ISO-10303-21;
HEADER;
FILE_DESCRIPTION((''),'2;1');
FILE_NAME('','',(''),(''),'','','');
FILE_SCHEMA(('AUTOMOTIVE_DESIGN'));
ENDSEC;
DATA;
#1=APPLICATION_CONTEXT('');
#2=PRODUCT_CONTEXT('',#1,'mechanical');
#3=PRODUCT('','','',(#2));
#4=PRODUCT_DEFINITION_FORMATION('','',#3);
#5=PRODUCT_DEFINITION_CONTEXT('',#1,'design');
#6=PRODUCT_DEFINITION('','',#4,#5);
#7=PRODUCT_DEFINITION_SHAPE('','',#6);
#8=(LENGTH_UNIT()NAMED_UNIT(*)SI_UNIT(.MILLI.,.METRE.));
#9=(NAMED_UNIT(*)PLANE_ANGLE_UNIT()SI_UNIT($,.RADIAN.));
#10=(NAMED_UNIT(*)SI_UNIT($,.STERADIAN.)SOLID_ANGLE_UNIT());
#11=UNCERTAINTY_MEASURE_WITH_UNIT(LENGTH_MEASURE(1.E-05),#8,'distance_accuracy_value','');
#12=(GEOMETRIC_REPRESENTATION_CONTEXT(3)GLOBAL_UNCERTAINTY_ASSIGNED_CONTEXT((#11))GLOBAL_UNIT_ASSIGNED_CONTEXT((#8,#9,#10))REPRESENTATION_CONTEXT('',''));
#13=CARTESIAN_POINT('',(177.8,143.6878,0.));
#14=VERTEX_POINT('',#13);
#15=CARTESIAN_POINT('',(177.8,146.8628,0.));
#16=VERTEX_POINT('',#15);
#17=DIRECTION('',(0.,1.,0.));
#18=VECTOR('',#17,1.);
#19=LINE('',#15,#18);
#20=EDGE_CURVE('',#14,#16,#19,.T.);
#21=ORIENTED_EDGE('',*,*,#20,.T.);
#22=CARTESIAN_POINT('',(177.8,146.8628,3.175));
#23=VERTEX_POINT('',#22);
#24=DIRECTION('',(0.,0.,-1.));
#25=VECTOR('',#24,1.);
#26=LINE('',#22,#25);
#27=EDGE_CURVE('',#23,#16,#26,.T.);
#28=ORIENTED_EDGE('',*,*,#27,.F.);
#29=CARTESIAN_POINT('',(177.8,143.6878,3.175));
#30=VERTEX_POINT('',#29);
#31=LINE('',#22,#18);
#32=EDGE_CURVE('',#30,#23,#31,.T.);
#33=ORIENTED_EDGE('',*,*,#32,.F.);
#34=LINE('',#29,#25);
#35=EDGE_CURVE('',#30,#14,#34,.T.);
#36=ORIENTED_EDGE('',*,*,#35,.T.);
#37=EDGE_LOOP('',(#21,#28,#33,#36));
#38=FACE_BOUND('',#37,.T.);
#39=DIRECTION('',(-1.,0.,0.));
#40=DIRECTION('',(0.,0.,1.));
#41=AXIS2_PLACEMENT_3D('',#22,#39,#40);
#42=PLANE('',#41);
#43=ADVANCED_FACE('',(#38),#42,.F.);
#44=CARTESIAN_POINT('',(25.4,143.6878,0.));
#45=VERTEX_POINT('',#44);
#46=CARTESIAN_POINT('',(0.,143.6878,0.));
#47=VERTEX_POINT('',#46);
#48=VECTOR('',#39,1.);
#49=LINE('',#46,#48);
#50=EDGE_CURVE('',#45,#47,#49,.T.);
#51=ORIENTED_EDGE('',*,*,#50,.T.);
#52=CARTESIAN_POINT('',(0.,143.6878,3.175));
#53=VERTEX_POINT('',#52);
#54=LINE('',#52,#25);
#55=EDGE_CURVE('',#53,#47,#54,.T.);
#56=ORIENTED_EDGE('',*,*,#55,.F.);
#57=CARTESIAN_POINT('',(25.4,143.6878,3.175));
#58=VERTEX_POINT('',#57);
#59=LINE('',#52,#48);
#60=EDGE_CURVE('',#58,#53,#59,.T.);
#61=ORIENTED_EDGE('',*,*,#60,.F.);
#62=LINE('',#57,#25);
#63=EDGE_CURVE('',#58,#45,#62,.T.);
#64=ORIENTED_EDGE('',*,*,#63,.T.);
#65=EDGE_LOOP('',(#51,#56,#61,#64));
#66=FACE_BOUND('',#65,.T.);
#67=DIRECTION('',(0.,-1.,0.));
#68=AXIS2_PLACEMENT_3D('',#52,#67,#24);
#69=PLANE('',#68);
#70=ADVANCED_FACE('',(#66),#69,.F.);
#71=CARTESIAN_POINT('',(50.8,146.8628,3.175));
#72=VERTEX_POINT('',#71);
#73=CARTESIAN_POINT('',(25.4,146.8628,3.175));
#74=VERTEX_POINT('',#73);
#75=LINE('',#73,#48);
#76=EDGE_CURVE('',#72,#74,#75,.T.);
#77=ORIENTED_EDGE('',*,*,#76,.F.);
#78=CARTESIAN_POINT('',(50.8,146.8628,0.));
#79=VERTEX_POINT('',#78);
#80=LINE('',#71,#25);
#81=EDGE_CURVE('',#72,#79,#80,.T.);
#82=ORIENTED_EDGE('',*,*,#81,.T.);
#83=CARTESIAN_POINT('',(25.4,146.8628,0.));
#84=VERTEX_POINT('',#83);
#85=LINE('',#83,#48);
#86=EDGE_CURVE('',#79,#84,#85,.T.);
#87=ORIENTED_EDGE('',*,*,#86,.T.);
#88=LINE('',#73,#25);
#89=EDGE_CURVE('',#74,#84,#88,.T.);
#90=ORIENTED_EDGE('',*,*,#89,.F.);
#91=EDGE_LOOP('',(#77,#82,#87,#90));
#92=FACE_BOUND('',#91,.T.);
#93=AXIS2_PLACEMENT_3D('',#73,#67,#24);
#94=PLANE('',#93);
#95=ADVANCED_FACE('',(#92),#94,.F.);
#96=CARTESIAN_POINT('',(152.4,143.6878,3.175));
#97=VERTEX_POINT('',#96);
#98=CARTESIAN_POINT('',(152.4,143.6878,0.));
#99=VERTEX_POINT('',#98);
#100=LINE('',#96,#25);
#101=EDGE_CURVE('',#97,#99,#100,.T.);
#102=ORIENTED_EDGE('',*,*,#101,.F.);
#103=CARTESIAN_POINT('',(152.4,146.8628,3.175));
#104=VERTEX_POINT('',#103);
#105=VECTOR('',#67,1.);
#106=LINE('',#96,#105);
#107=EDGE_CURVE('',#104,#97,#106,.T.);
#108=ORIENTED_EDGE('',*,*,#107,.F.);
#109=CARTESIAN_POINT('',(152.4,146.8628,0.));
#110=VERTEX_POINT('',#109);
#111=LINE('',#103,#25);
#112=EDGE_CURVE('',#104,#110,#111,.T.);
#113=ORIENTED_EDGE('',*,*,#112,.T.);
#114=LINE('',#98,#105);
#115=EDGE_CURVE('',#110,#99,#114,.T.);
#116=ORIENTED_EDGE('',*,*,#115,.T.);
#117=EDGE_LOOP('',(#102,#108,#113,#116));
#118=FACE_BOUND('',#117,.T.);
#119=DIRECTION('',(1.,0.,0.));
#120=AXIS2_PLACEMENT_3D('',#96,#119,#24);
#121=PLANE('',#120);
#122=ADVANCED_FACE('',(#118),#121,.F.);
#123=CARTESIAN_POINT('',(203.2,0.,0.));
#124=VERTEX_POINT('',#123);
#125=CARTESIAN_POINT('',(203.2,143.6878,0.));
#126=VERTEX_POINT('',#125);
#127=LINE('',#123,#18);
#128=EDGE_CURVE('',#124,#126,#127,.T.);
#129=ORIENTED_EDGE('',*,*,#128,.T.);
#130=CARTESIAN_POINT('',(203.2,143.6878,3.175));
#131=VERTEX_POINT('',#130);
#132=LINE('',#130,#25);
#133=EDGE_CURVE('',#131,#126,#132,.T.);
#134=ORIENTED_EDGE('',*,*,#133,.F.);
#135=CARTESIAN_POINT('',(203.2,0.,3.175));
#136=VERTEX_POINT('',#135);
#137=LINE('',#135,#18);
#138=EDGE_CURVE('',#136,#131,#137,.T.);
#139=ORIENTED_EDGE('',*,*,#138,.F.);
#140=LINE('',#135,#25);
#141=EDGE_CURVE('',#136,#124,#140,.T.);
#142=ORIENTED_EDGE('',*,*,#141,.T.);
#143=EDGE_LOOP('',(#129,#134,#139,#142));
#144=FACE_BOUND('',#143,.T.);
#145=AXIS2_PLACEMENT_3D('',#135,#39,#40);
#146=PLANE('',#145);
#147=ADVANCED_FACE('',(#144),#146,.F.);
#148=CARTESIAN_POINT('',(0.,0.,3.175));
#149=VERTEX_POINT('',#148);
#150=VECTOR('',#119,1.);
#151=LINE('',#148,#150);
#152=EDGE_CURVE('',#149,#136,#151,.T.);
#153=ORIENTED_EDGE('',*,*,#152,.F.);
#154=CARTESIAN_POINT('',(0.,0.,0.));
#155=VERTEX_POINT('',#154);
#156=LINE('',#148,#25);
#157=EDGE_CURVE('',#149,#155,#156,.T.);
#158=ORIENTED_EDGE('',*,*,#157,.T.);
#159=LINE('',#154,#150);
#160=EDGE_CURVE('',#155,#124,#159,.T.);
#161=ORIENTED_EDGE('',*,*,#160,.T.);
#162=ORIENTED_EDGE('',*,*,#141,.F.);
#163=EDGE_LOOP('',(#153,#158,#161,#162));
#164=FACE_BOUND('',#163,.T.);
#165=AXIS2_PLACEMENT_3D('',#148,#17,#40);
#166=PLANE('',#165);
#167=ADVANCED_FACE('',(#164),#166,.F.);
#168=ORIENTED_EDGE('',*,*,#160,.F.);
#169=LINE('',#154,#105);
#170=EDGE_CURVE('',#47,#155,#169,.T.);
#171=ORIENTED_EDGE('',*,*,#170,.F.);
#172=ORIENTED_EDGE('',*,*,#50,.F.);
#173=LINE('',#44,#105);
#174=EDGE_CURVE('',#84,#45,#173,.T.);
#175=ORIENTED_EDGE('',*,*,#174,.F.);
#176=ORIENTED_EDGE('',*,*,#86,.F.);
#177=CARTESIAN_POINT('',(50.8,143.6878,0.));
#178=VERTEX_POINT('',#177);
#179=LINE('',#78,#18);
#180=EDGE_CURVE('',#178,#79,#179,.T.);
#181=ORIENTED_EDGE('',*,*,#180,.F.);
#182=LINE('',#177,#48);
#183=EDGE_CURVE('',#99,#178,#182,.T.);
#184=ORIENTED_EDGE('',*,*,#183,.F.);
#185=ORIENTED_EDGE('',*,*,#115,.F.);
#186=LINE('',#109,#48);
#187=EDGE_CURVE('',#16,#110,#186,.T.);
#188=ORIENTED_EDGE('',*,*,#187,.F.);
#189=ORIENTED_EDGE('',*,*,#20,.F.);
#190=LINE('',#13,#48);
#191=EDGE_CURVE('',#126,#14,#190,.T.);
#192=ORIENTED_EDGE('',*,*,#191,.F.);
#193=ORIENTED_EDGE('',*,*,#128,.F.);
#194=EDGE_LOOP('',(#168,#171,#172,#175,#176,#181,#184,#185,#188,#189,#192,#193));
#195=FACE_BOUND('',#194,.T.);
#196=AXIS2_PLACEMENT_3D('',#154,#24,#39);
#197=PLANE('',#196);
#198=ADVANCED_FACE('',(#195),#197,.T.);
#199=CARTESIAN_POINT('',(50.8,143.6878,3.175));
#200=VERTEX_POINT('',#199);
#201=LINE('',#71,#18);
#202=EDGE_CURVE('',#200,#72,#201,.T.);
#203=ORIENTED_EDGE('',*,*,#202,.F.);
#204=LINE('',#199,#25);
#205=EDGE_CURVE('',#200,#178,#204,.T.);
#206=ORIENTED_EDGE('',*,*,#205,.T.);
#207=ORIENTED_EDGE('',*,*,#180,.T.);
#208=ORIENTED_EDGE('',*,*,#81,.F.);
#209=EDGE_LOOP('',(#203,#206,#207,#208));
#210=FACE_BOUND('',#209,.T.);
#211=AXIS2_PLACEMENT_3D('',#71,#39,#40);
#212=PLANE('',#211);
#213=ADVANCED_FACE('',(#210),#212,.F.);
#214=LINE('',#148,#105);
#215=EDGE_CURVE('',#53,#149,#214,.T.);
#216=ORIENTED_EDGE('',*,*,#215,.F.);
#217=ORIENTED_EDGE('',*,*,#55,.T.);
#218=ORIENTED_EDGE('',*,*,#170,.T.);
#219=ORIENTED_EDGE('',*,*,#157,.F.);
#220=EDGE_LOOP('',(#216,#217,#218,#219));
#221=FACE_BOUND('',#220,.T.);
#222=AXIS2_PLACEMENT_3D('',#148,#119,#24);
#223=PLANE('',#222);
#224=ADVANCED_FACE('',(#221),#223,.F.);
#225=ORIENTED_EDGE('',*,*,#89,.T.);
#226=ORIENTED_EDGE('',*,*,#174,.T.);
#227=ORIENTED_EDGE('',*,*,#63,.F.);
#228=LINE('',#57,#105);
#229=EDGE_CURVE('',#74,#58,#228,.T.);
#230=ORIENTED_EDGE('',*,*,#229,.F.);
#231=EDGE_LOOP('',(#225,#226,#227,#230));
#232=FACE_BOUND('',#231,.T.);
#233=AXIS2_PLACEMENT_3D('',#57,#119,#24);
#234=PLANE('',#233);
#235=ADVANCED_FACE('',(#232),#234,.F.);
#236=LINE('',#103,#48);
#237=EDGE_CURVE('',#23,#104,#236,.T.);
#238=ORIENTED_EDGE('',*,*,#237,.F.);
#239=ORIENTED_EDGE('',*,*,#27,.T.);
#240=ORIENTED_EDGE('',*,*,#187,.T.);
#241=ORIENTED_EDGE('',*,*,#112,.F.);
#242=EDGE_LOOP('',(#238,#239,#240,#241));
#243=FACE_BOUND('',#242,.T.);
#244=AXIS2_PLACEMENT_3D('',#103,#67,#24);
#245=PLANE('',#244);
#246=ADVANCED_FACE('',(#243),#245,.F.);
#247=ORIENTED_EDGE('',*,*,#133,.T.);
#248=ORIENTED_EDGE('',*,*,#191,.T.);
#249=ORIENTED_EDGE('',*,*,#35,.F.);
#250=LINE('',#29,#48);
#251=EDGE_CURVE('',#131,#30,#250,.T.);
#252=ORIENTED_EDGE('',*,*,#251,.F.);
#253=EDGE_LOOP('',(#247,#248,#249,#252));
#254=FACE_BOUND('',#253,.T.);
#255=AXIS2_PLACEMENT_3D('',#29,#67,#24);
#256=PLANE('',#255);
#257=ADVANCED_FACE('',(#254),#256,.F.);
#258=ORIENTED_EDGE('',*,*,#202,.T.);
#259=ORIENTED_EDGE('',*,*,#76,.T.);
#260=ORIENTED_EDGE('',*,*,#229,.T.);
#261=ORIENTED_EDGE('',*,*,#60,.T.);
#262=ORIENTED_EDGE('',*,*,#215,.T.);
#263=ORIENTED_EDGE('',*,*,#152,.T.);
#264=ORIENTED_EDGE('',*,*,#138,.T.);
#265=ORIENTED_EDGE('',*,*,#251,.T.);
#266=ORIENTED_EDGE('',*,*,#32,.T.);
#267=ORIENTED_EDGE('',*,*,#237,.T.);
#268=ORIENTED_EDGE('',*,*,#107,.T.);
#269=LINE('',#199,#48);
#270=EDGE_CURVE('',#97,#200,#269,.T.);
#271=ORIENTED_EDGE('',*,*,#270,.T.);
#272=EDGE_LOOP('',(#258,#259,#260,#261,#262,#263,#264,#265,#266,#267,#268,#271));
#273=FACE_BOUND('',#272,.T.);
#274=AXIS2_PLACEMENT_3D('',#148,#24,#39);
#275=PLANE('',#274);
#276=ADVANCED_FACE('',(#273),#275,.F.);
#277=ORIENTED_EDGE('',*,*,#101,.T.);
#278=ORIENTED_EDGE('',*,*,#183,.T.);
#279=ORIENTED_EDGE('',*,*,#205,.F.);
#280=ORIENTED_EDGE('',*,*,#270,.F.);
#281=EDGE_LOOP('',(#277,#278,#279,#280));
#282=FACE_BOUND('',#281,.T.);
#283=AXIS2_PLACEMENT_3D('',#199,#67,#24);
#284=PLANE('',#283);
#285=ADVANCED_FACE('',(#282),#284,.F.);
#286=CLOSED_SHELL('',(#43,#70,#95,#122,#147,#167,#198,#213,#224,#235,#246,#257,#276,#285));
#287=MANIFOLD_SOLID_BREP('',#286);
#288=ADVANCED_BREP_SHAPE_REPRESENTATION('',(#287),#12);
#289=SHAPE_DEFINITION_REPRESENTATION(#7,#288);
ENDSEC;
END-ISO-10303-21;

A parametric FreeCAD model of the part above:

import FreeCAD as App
import Part
import Sketcher
Q = App.Units.Quantity


def add_polygon(sketch, points):
    """Adds a closed chain of lines whose ends are joined by coincident constraints."""
    first, n = sketch.GeometryCount, len(points)
    for a, b in zip(points, points[1:] + points[:1]):
        sketch.addGeometry(Part.LineSegment(App.Vector(*a, 0), App.Vector(*b, 0)), False)
    for i in range(n):
        sketch.addConstraint(Sketcher.Constraint("Coincident", first + i, 2, first + (i + 1) % n, 1))

doc = App.newDocument("Part")
body = doc.addObject("PartDesign::Body", "Body")

sketch1 = body.newObject("Sketcher::SketchObject", "Sketch")
sketch1.AttachmentSupport = (doc.getObject("XY_Plane"), [""])
sketch1.MapMode = "FlatFace"
add_polygon(sketch1, [(25.4, 143.7), (0, 143.7), (0, 0), (203.2, 0), (203.2, 143.7), (177.8, 143.7), (177.8, 146.9), (152.4, 146.9), (152.4, 143.7), (50.8, 143.7), (50.8, 146.9), (25.4, 146.9)])
sketch1.addConstraint([
    Sketcher.Constraint("Horizontal", 0),
    Sketcher.Constraint("Vertical", 1),
    Sketcher.Constraint("Horizontal", 2),
    Sketcher.Constraint("Vertical", 3),
    Sketcher.Constraint("Horizontal", 4),
    Sketcher.Constraint("Vertical", 5),
    Sketcher.Constraint("Horizontal", 6),
    Sketcher.Constraint("Vertical", 7),
    Sketcher.Constraint("Horizontal", 8),
    Sketcher.Constraint("Vertical", 9),
    Sketcher.Constraint("Horizontal", 10),
    Sketcher.Constraint("Vertical", 11),
    Sketcher.Constraint("Coincident", 1, 2, -1, 1),
    Sketcher.Constraint("Horizontal", 0, 2, 3, 2),
    Sketcher.Constraint("Horizontal", 4, 2, 7, 2),
    Sketcher.Constraint("Horizontal", 6, 2, 9, 2),
    Sketcher.Constraint("Equal", 0, 4),
    Sketcher.Constraint("Equal", 4, 6),
    Sketcher.Constraint("Equal", 6, 10),
    Sketcher.Constraint("DistanceX", 0, 2, 0, 1, Q("1 in")),
    Sketcher.Constraint("DistanceX", 2, 1, 2, 2, Q("8 in")),
    Sketcher.Constraint("DistanceY", 1, 2, 1, 1, Q("5.657 in")),
    Sketcher.Constraint("DistanceY", 5, 1, 5, 2, Q("0.125 in")),
])
pad1 = body.newObject("PartDesign::Pad", "Pad")
pad1.Profile = sketch1
pad1.Length = Q("0.125 in")

sketch2 = body.newObject("Sketcher::SketchObject", "Sketch001")
sketch2.AttachmentSupport = (doc.getObject("XY_Plane"), [""])
sketch2.MapMode = "FlatFace"
add_polygon(sketch2, [(25.4, 143.7), (0, 143.7), (0, 0), (203.2, 0), (203.2, 143.7), (177.8, 143.7), (177.8, 146.9), (152.4, 146.9), (152.4, 143.7), (50.8, 143.7), (50.8, 146.9), (25.4, 146.9)])
sketch2.addConstraint([
    Sketcher.Constraint("Horizontal", 0),
    Sketcher.Constraint("Vertical", 1),
    Sketcher.Constraint("Horizontal", 2),
    Sketcher.Constraint("Vertical", 3),
    Sketcher.Constraint("Horizontal", 4),
    Sketcher.Constraint("Vertical", 5),
    Sketcher.Constraint("Horizontal", 6),
    Sketcher.Constraint("Vertical", 7),
    Sketcher.Constraint("Horizontal", 8),
    Sketcher.Constraint("Vertical", 9),
    Sketcher.Constraint("Horizontal", 10),
    Sketcher.Constraint("Vertical", 11),
    Sketcher.Constraint("Coincident", 1, 2, -1, 1),
    Sketcher.Constraint("Horizontal", 0, 2, 3, 2),
    Sketcher.Constraint("Horizontal", 4, 2, 7, 2),
    Sketcher.Constraint("Horizontal", 6, 2, 9, 2),
    Sketcher.Constraint("Equal", 0, 4),
    Sketcher.Constraint("Equal", 4, 6),
    Sketcher.Constraint("Equal", 6, 10),
    Sketcher.Constraint("DistanceX", 0, 2, 0, 1, Q("1 in")),
    Sketcher.Constraint("DistanceX", 2, 1, 2, 2, Q("8 in")),
    Sketcher.Constraint("DistanceY", 1, 2, 1, 1, Q("5.657 in")),
    Sketcher.Constraint("DistanceY", 5, 1, 5, 2, Q("0.125 in")),
])
pad2 = body.newObject("PartDesign::Pad", "Pad001")
pad2.Profile = sketch2
pad2.Length = Q("0.125 in")

doc.recompute()
